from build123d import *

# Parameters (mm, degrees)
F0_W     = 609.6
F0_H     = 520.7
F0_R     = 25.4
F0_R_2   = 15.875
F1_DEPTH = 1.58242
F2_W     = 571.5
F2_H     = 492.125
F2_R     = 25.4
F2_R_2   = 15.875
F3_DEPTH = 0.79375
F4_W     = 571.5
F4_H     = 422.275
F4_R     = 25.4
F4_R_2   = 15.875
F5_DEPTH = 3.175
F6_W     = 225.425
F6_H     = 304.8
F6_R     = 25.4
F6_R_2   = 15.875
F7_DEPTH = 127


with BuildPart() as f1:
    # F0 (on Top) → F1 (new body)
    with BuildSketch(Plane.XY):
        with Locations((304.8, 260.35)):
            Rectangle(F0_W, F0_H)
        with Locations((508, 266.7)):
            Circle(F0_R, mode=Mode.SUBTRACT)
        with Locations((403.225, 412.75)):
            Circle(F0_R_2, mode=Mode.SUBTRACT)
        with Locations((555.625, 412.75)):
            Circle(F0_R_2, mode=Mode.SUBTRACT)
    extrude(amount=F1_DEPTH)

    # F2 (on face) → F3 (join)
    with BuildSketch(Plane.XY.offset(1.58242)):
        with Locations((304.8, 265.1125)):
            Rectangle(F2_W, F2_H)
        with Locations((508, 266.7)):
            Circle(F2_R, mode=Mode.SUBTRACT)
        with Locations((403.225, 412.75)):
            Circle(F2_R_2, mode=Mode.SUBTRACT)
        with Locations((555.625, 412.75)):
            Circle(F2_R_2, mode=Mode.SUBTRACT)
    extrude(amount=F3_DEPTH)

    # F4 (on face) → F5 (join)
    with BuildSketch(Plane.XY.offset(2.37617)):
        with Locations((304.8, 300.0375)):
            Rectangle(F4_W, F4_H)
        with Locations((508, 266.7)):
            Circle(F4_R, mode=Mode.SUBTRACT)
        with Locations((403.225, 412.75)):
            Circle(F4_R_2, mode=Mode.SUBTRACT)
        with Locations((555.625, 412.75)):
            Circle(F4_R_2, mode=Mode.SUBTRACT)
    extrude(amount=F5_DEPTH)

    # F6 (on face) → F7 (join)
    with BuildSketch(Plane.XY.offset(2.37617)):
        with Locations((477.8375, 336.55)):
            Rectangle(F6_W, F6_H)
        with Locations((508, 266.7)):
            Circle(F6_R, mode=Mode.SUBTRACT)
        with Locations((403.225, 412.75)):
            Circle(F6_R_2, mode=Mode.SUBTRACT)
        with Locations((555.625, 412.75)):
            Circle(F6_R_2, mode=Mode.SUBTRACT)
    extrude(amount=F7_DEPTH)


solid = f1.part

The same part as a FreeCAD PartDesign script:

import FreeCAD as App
import Part
import Sketcher

V = App.Vector
Q = App.Units.Quantity

doc = App.newDocument("Part")
body = doc.addObject("PartDesign::Body", "Body")

# Sketch on XY plane
sketch1 = doc.addObject("Sketcher::SketchObject", "Sketch")
body.addObject(sketch1)
sketch1.AttachmentSupport = (doc.XY_Plane, [""])
sketch1.MapMode = "FlatFace"
sketch1.addGeometry([
    Part.LineSegment(V(0, 521, 0), V(0, 0, 0)),  # 0
    Part.LineSegment(V(0, 0, 0), V(610, 0, 0)),  # 1
    Part.LineSegment(V(610, 0, 0), V(610, 521, 0)),  # 2
    Part.LineSegment(V(610, 521, 0), V(0, 521, 0)),  # 3
    Part.Circle(V(508, 267, 0), V(0, 0, 1), 25),  # 4
    Part.Circle(V(403, 413, 0), V(0, 0, 1), 16),  # 5
    Part.Circle(V(556, 413, 0), V(0, 0, 1), 16),  # 6
], False)
sketch1.addConstraint([
    Sketcher.Constraint("Coincident", 0, 2, 1, 1),
    Sketcher.Constraint("Coincident", 1, 2, 2, 1),
    Sketcher.Constraint("Coincident", 2, 2, 3, 1),
    Sketcher.Constraint("Coincident", 3, 2, 0, 1),
    Sketcher.Constraint("Vertical", 0),
    Sketcher.Constraint("Horizontal", 1),
    Sketcher.Constraint("Vertical", 2),
    Sketcher.Constraint("Horizontal", 3),
    Sketcher.Constraint("Coincident", 0, 2, -1, 1),
    Sketcher.Constraint("Equal", 5, 6),
    Sketcher.Constraint("Horizontal", 5, 3, 6, 3),
    Sketcher.Constraint("Diameter", 4, Q("2 in")),
    Sketcher.Constraint("Diameter", 5, Q("1.25 in")),
    Sketcher.Constraint("DistanceX", 1, 1, 1, 2, Q("24 in")),
    Sketcher.Constraint("DistanceY", 0, 2, 0, 1, Q("20.5 in")),
    Sketcher.Constraint("DistanceX", -1, 1, 4, 3, Q("20 in")),
    Sketcher.Constraint("DistanceX", 5, 3, 6, 3, Q("6 in")),
    Sketcher.Constraint("DistanceY", 4, 3, 2, 2, Q("10 in")),
    Sketcher.Constraint("DistanceY", -1, 1, 5, 3, Q("16.25 in")),
    Sketcher.Constraint("DistanceX", -1, 1, 5, 3, Q("15.875 in")),
])
pad1 = doc.addObject("PartDesign::Pad", "Pad")
body.addObject(pad1)
pad1.Profile = sketch1
pad1.Length = Q("0.0623 in")

# Sketch on XY plane
sketch2 = doc.addObject("Sketcher::SketchObject", "Sketch001")
body.addObject(sketch2)
sketch2.AttachmentSupport = (doc.XY_Plane, [""])
sketch2.MapMode = "FlatFace"
sketch2.AttachmentOffset = App.Placement(V(0, 0, 0.0623 * 25.4), App.Rotation())
sketch2.addGeometry([
    Part.LineSegment(V(19, 511, 0), V(19, 19, 0)),  # 0
    Part.LineSegment(V(19, 19, 0), V(591, 19, 0)),  # 1
    Part.LineSegment(V(591, 19, 0), V(591, 511, 0)),  # 2
    Part.LineSegment(V(591, 511, 0), V(19, 511, 0)),  # 3
    Part.Circle(V(508, 267, 0), V(0, 0, 1), 25),  # 4
    Part.Circle(V(403, 413, 0), V(0, 0, 1), 16),  # 5
    Part.Circle(V(556, 413, 0), V(0, 0, 1), 16),  # 6
], False)
sketch2.addConstraint([
    Sketcher.Constraint("Coincident", 0, 2, 1, 1),
    Sketcher.Constraint("Coincident", 1, 2, 2, 1),
    Sketcher.Constraint("Coincident", 2, 2, 3, 1),
    Sketcher.Constraint("Coincident", 3, 2, 0, 1),
    Sketcher.Constraint("Vertical", 0),
    Sketcher.Constraint("Horizontal", 1),
    Sketcher.Constraint("Vertical", 2),
    Sketcher.Constraint("Horizontal", 3),
    Sketcher.Constraint("Equal", 5, 6),
    Sketcher.Constraint("Horizontal", 5, 3, 6, 3),
    Sketcher.Constraint("Diameter", 4, Q("2 in")),
    Sketcher.Constraint("Diameter", 5, Q("1.25 in")),
    Sketcher.Constraint("DistanceX", 1, 1, 1, 2, Q("22.5 in")),
    Sketcher.Constraint("DistanceX", -1, 1, 4, 3, Q("20 in")),
    Sketcher.Constraint("DistanceX", 5, 3, 6, 3, Q("6 in")),
    Sketcher.Constraint("DistanceY", -1, 1, 4, 3, Q("10.5 in")),
    Sketcher.Constraint("DistanceY", 0, 2, 5, 3, Q("15.5 in")),
    Sketcher.Constraint("DistanceY", 0, 2, 0, 1, Q("19.375 in")),
    Sketcher.Constraint("DistanceY", -1, 1, 5, 3, Q("16.25 in")),
    Sketcher.Constraint("DistanceX", -1, 1, 0, 2, Q("0.75 in")),
    Sketcher.Constraint("DistanceX", -1, 1, 5, 3, Q("15.875 in")),
])
pad2 = doc.addObject("PartDesign::Pad", "Pad001")
body.addObject(pad2)
pad2.Profile = sketch2
pad2.Length = Q("0.03125 in")

# Sketch on XY plane
sketch3 = doc.addObject("Sketcher::SketchObject", "Sketch002")
body.addObject(sketch3)
sketch3.AttachmentSupport = (doc.XY_Plane, [""])
sketch3.MapMode = "FlatFace"
sketch3.AttachmentOffset = App.Placement(V(0, 0, 2.37617), App.Rotation())
sketch3.addGeometry([
    Part.LineSegment(V(19, 511, 0), V(19, 89, 0)),  # 0
    Part.LineSegment(V(19, 89, 0), V(591, 89, 0)),  # 1
    Part.LineSegment(V(591, 89, 0), V(591, 511, 0)),  # 2
    Part.LineSegment(V(591, 511, 0), V(19, 511, 0)),  # 3
    Part.Circle(V(508, 267, 0), V(0, 0, 1), 25),  # 4
    Part.Circle(V(403, 413, 0), V(0, 0, 1), 16),  # 5
    Part.Circle(V(556, 413, 0), V(0, 0, 1), 16),  # 6
], False)
sketch3.addConstraint([
    Sketcher.Constraint("Coincident", 0, 2, 1, 1),
    Sketcher.Constraint("Coincident", 1, 2, 2, 1),
    Sketcher.Constraint("Coincident", 2, 2, 3, 1),
    Sketcher.Constraint("Coincident", 3, 2, 0, 1),
    Sketcher.Constraint("Vertical", 0),
    Sketcher.Constraint("Horizontal", 1),
    Sketcher.Constraint("Vertical", 2),
    Sketcher.Constraint("Horizontal", 3),
    Sketcher.Constraint("Equal", 5, 6),
    Sketcher.Constraint("Horizontal", 5, 3, 6, 3),
    Sketcher.Constraint("Diameter", 4, Q("2 in")),
    Sketcher.Constraint("Diameter", 5, Q("1.25 in")),
    Sketcher.Constraint("DistanceX", 1, 1, 1, 2, Q("22.5 in")),
    Sketcher.Constraint("DistanceX", -1, 1, 4, 3, Q("20 in")),
    Sketcher.Constraint("DistanceX", 5, 3, 6, 3, Q("6 in")),
    Sketcher.Constraint("DistanceY", 0, 2, 4, 3, Q("7 in")),
    Sketcher.Constraint("DistanceY", -1, 1, 4, 3, Q("10.5 in")),
    Sketcher.Constraint("DistanceY", 0, 2, 0, 1, Q("16.625 in")),
    Sketcher.Constraint("DistanceY", -1, 1, 5, 3, Q("16.25 in")),
    Sketcher.Constraint("DistanceX", -1, 1, 0, 2, Q("0.75 in")),
    Sketcher.Constraint("DistanceX", -1, 1, 5, 3, Q("15.875 in")),
])
pad3 = doc.addObject("PartDesign::Pad", "Pad002")
body.addObject(pad3)
pad3.Profile = sketch3
pad3.Length = Q("0.125 in")

# Sketch on XY plane
sketch4 = doc.addObject("Sketcher::SketchObject", "Sketch003")
body.addObject(sketch4)
sketch4.AttachmentSupport = (doc.XY_Plane, [""])
sketch4.MapMode = "FlatFace"
sketch4.AttachmentOffset = App.Placement(V(0, 0, 2.37617), App.Rotation())
sketch4.addGeometry([
    Part.LineSegment(V(365, 489, 0), V(365, 184, 0)),  # 0
    Part.LineSegment(V(365, 184, 0), V(591, 184, 0)),  # 1
    Part.LineSegment(V(591, 184, 0), V(591, 489, 0)),  # 2
    Part.LineSegment(V(591, 489, 0), V(365, 489, 0)),  # 3
    Part.Circle(V(508, 267, 0), V(0, 0, 1), 25),  # 4
    Part.Circle(V(403, 413, 0), V(0, 0, 1), 16),  # 5
    Part.Circle(V(556, 413, 0), V(0, 0, 1), 16),  # 6
], False)
sketch4.addConstraint([
    Sketcher.Constraint("Coincident", 0, 2, 1, 1),
    Sketcher.Constraint("Coincident", 1, 2, 2, 1),
    Sketcher.Constraint("Coincident", 2, 2, 3, 1),
    Sketcher.Constraint("Coincident", 3, 2, 0, 1),
    Sketcher.Constraint("Vertical", 0),
    Sketcher.Constraint("Horizontal", 1),
    Sketcher.Constraint("Vertical", 2),
    Sketcher.Constraint("Horizontal", 3),
    Sketcher.Constraint("Equal", 5, 6),
    Sketcher.Constraint("Horizontal", 5, 3, 6, 3),
    Sketcher.Constraint("Diameter", 4, Q("2 in")),
    Sketcher.Constraint("Diameter", 5, Q("1.25 in")),
    Sketcher.Constraint("DistanceY", 0, 2, 0, 1, Q("12 in")),
    Sketcher.Constraint("DistanceX", -1, 1, 4, 3, Q("20 in")),
    Sketcher.Constraint("DistanceX", 5, 3, 6, 3, Q("6 in")),
    Sketcher.Constraint("DistanceY", 0, 2, 5, 3, Q("9 in")),
    Sketcher.Constraint("DistanceY", -1, 1, 4, 3, Q("10.5 in")),
    Sketcher.Constraint("DistanceX", 0, 2, 5, 3, Q("1.5 in")),
    Sketcher.Constraint("DistanceX", 1, 1, 1, 2, Q("8.875 in")),
    Sketcher.Constraint("DistanceY", -1, 1, 5, 3, Q("16.25 in")),
    Sketcher.Constraint("DistanceX", -1, 1, 1, 2, Q("23.25 in")),
])
pad4 = doc.addObject("PartDesign::Pad", "Pad003")
body.addObject(pad4)
pad4.Profile = sketch4
pad4.Length = Q("5 in")

doc.recompute()
